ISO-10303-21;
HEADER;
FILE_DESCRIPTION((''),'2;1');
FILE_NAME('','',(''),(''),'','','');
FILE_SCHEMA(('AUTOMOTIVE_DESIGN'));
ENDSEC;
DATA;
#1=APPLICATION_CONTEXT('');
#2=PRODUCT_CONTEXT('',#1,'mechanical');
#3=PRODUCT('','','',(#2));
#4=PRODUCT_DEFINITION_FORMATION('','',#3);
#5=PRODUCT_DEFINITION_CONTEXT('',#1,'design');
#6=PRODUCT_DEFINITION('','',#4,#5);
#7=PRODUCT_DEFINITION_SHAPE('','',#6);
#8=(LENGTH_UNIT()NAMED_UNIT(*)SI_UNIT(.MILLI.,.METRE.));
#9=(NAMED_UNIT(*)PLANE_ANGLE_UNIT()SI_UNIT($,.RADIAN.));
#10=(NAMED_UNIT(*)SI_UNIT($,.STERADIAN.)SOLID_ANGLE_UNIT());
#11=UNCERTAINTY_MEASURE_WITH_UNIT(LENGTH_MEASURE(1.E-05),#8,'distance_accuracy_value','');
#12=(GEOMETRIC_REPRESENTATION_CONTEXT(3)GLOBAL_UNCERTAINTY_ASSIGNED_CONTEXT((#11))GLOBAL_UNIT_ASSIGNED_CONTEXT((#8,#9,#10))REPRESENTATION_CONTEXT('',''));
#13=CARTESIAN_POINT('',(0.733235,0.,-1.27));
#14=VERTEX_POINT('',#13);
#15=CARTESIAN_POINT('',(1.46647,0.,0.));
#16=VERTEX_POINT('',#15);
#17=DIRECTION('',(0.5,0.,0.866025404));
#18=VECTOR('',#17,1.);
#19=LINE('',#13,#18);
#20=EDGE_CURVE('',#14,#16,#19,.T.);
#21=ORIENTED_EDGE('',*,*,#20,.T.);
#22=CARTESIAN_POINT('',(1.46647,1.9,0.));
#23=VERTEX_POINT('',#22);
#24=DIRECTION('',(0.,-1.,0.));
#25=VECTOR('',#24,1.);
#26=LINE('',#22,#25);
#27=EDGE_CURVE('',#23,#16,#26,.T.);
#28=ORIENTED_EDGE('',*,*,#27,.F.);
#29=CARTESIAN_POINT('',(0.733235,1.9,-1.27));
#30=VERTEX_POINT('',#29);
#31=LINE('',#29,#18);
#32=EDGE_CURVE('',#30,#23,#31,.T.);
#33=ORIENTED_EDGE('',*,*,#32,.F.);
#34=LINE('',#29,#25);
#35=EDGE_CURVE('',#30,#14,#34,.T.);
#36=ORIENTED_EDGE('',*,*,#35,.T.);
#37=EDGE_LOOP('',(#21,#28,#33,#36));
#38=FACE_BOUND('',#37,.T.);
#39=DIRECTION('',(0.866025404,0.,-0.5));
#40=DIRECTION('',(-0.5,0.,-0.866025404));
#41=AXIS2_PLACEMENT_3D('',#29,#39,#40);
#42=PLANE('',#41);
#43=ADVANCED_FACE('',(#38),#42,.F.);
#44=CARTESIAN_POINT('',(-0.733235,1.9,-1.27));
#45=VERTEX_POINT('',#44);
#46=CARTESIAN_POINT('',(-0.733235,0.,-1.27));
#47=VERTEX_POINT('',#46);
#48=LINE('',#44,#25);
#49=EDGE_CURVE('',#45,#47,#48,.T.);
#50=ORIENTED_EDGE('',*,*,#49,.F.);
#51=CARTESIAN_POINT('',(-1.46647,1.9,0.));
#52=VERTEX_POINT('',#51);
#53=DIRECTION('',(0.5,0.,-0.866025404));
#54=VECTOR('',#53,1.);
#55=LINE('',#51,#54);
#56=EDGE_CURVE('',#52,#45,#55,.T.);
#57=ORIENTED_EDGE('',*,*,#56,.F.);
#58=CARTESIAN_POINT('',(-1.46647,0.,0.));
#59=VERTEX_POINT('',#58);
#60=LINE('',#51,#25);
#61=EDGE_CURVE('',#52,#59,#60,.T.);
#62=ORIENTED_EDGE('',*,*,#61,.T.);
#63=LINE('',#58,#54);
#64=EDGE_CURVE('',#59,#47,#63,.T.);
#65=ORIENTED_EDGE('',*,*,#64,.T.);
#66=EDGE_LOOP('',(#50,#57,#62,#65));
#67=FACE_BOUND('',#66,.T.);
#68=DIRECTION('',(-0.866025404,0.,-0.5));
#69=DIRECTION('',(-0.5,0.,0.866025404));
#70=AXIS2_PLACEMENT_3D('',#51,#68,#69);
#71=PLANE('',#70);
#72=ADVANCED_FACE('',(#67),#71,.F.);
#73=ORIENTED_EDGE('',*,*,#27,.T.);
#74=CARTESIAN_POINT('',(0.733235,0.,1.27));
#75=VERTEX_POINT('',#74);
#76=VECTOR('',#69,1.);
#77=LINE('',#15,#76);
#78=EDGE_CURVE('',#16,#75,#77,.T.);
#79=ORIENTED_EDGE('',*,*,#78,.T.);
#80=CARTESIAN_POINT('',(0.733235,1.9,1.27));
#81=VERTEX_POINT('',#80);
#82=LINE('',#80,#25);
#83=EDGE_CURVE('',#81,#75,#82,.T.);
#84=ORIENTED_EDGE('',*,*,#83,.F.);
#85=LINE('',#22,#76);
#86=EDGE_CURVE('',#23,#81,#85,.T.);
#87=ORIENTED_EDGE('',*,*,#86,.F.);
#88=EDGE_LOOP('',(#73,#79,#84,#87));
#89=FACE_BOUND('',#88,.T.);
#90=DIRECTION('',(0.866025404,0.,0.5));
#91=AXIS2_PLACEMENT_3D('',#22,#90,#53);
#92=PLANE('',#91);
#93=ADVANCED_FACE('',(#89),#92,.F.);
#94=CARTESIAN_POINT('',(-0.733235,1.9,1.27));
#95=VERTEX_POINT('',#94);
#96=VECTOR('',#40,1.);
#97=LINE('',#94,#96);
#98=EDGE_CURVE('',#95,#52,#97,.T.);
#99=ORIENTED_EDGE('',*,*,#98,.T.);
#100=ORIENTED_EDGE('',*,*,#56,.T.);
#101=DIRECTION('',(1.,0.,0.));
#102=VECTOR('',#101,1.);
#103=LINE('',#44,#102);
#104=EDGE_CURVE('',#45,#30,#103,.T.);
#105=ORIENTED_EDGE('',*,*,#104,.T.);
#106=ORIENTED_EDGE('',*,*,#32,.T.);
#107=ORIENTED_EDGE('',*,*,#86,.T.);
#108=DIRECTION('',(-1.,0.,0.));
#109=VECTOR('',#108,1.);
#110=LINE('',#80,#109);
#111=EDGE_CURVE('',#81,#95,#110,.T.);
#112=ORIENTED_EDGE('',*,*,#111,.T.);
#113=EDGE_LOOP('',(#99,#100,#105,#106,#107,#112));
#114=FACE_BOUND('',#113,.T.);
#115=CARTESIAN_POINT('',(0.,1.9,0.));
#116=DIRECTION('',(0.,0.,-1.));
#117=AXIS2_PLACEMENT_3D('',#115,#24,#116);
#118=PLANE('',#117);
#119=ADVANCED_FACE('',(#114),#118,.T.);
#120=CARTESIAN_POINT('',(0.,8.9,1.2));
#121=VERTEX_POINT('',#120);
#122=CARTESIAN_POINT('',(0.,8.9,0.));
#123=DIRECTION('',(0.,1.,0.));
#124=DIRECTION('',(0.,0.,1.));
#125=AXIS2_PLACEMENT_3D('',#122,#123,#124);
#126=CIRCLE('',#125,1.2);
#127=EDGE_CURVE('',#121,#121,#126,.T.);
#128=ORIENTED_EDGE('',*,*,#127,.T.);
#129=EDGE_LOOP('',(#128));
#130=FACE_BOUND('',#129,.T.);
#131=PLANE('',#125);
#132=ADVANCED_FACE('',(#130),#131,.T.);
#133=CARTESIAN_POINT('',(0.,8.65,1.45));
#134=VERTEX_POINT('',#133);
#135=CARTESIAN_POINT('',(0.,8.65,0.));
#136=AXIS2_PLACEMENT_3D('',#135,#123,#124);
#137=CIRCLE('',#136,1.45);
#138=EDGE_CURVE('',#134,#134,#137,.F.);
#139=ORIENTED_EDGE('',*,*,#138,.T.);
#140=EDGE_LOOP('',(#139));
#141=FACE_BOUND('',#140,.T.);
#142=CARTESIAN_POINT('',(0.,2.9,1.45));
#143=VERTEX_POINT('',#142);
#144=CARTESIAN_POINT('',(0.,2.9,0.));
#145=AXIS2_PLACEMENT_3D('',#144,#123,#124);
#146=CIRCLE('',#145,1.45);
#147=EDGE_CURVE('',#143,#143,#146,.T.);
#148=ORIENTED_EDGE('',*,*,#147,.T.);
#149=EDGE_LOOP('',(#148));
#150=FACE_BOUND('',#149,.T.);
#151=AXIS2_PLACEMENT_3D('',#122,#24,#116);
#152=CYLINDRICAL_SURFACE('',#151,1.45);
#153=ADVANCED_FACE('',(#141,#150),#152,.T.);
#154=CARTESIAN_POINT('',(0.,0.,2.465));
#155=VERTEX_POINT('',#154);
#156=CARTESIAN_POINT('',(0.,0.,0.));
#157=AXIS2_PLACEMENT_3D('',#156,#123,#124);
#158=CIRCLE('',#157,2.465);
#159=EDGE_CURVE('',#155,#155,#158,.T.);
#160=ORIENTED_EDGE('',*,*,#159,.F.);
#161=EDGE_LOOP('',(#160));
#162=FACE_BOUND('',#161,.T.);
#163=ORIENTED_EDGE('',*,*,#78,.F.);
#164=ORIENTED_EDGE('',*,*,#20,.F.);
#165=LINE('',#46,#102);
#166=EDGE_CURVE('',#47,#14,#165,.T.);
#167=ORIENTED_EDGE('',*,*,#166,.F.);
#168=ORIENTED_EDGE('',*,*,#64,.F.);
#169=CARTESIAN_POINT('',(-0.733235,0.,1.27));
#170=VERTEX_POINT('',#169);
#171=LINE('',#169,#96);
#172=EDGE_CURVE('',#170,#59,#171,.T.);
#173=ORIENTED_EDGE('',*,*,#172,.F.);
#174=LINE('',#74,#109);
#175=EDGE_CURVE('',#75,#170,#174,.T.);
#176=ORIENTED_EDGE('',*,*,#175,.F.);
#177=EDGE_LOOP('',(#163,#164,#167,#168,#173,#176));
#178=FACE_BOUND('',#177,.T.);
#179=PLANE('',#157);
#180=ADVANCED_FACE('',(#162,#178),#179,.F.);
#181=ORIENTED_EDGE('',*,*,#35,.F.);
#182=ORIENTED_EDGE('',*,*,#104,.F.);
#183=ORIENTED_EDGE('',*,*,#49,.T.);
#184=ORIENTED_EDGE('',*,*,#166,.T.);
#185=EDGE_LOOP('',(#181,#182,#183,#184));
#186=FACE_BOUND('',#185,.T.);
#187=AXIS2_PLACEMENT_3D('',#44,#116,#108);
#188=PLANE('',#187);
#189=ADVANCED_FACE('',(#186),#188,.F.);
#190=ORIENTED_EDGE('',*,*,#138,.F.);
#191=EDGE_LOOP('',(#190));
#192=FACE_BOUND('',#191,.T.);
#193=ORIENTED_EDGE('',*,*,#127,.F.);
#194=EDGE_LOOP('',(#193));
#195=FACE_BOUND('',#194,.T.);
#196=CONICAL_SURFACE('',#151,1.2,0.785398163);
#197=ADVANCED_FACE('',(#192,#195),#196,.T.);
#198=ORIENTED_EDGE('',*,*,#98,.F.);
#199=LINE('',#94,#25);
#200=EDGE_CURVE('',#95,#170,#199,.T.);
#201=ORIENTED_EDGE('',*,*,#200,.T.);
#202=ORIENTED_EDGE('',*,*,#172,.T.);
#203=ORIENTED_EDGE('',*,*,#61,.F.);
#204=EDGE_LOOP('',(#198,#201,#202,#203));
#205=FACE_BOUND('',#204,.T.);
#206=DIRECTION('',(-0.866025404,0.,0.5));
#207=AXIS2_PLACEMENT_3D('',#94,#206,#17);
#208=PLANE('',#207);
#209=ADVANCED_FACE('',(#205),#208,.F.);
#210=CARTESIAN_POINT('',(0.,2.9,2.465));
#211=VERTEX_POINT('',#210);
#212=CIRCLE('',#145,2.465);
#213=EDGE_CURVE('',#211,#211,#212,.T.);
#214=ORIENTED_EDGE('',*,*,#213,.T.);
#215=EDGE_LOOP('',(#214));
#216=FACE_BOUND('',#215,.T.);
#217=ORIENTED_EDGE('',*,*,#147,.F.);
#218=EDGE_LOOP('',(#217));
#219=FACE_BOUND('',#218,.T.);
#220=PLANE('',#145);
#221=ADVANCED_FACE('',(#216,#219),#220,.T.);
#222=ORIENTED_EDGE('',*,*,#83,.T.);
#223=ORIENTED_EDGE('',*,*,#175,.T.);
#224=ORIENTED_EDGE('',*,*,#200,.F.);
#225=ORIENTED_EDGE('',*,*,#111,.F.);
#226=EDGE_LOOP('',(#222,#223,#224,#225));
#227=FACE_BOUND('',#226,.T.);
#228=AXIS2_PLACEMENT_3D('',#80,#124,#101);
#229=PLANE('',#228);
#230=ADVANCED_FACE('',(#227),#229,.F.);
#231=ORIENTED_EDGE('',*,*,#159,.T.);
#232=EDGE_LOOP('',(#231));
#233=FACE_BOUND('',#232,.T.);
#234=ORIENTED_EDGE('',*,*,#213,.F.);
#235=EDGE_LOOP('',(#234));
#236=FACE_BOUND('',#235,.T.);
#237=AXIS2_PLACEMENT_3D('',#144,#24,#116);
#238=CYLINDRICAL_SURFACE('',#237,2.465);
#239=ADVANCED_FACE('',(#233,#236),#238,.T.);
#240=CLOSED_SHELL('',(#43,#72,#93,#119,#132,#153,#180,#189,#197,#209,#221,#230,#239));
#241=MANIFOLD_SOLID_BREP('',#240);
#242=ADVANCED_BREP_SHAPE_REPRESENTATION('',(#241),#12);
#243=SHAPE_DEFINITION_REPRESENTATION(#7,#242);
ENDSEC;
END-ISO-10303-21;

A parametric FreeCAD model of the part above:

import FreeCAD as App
import Part
import Sketcher
Q = App.Units.Quantity


def edges_at(feature, points):
    """Names of the edges that pass closest to the given points."""
    edges = feature.Shape.Edges
    near = lambda p: min(range(len(edges)), key=lambda i: edges[i].distToShape(Part.Vertex(*p))[0])
    return sorted({f"Edge{near(p) + 1}" for p in points})


def add_polygon(sketch, points):
    """Adds a closed chain of lines whose ends are joined by coincident constraints."""
    first, n = sketch.GeometryCount, len(points)
    for a, b in zip(points, points[1:] + points[:1]):
        sketch.addGeometry(Part.LineSegment(App.Vector(*a, 0), App.Vector(*b, 0)), False)
    for i in range(n):
        sketch.addConstraint(Sketcher.Constraint("Coincident", first + i, 2, first + (i + 1) % n, 1))

doc = App.newDocument("Part")
body = doc.addObject("PartDesign::Body", "Body")

# Sketch on XZ plane
sketch1 = body.newObject("Sketcher::SketchObject", "Sketch")
sketch1.AttachmentSupport = (doc.getObject("XZ_Plane"), [""])
sketch1.MapMode = "FlatFace"
sketch1.addGeometry(Part.Circle(App.Vector(0, 0, 0), App.Vector(0, 0, 1), 2.465), False)
sketch1.addConstraint(Sketcher.Constraint("Coincident", 0, 3, -1, 1))
sketch1.addConstraint(Sketcher.Constraint("Diameter", 0, 4.93))
pad1 = body.newObject("PartDesign::Pad", "Pad")
pad1.Profile = sketch1
pad1.Length = 2.9
pad1.Reversed = True

# Sketch on XZ plane
sketch2 = body.newObject("Sketcher::SketchObject", "Sketch001")
sketch2.AttachmentSupport = (doc.getObject("XZ_Plane"), [""])
sketch2.MapMode = "FlatFace"
sketch2.AttachmentOffset = App.Placement(App.Vector(0, 0, -2.9), App.Rotation())
sketch2.addGeometry(Part.Circle(App.Vector(0, 0, 0), App.Vector(0, 0, 1), 1.45), False)
sketch2.addConstraint(Sketcher.Constraint("Coincident", 0, 3, -1, 1))
sketch2.addConstraint(Sketcher.Constraint("Diameter", 0, 2.9))
pad2 = body.newObject("PartDesign::Pad", "Pad001")
pad2.Profile = sketch2
pad2.Length = 6
pad2.Reversed = True

# Sketch on XZ plane
sketch3 = body.newObject("Sketcher::SketchObject", "Sketch002")
sketch3.AttachmentSupport = (doc.getObject("XZ_Plane"), [""])
sketch3.MapMode = "FlatFace"
add_polygon(sketch3, [(0.733235, -1.27), (1.46647, 0), (0.733235, 1.27), (-0.733235, 1.27), (-1.46647, 0), (-0.733235, -1.27)])  # lines 0-5
sketch3.addConstraint(Sketcher.Constraint("Horizontal", 2))
sketch3.addConstraint(Sketcher.Constraint("Horizontal", 5))
sketch3.addConstraint(Sketcher.Constraint("Symmetric", 0, 2, 3, 2, -1, 1))
sketch3.addConstraint(Sketcher.Constraint("Symmetric", 1, 2, 4, 2, -1, 1))
sketch3.addConstraint(Sketcher.Constraint("PointOnObject", 0, 2, -1))
sketch3.addConstraint(Sketcher.Constraint("Parallel", 0, 3))
sketch3.addConstraint(Sketcher.Constraint("Vertical", 2, 2, 4, 2))
sketch3.addConstraint(Sketcher.Constraint("Angle", 0, Q("60 deg")))
sketch3.addConstraint(Sketcher.Constraint("DistanceY", -1, 1, 1, 2, 1.27))
sketch3.addConstraint(Sketcher.Constraint("DistanceX", 2, 2, 2, 1, 1.46647))
pocket1 = body.newObject("PartDesign::Pocket", "Pocket")
pocket1.Profile = sketch3
pocket1.Length = 1.9
doc.recompute()

chamfer = body.newObject("PartDesign::Chamfer", "Chamfer")
chamfer.Base = (pocket1, edges_at(pocket1, [(-1.45, 8.9, 0)]))
chamfer.Size = 0.25

doc.recompute()
